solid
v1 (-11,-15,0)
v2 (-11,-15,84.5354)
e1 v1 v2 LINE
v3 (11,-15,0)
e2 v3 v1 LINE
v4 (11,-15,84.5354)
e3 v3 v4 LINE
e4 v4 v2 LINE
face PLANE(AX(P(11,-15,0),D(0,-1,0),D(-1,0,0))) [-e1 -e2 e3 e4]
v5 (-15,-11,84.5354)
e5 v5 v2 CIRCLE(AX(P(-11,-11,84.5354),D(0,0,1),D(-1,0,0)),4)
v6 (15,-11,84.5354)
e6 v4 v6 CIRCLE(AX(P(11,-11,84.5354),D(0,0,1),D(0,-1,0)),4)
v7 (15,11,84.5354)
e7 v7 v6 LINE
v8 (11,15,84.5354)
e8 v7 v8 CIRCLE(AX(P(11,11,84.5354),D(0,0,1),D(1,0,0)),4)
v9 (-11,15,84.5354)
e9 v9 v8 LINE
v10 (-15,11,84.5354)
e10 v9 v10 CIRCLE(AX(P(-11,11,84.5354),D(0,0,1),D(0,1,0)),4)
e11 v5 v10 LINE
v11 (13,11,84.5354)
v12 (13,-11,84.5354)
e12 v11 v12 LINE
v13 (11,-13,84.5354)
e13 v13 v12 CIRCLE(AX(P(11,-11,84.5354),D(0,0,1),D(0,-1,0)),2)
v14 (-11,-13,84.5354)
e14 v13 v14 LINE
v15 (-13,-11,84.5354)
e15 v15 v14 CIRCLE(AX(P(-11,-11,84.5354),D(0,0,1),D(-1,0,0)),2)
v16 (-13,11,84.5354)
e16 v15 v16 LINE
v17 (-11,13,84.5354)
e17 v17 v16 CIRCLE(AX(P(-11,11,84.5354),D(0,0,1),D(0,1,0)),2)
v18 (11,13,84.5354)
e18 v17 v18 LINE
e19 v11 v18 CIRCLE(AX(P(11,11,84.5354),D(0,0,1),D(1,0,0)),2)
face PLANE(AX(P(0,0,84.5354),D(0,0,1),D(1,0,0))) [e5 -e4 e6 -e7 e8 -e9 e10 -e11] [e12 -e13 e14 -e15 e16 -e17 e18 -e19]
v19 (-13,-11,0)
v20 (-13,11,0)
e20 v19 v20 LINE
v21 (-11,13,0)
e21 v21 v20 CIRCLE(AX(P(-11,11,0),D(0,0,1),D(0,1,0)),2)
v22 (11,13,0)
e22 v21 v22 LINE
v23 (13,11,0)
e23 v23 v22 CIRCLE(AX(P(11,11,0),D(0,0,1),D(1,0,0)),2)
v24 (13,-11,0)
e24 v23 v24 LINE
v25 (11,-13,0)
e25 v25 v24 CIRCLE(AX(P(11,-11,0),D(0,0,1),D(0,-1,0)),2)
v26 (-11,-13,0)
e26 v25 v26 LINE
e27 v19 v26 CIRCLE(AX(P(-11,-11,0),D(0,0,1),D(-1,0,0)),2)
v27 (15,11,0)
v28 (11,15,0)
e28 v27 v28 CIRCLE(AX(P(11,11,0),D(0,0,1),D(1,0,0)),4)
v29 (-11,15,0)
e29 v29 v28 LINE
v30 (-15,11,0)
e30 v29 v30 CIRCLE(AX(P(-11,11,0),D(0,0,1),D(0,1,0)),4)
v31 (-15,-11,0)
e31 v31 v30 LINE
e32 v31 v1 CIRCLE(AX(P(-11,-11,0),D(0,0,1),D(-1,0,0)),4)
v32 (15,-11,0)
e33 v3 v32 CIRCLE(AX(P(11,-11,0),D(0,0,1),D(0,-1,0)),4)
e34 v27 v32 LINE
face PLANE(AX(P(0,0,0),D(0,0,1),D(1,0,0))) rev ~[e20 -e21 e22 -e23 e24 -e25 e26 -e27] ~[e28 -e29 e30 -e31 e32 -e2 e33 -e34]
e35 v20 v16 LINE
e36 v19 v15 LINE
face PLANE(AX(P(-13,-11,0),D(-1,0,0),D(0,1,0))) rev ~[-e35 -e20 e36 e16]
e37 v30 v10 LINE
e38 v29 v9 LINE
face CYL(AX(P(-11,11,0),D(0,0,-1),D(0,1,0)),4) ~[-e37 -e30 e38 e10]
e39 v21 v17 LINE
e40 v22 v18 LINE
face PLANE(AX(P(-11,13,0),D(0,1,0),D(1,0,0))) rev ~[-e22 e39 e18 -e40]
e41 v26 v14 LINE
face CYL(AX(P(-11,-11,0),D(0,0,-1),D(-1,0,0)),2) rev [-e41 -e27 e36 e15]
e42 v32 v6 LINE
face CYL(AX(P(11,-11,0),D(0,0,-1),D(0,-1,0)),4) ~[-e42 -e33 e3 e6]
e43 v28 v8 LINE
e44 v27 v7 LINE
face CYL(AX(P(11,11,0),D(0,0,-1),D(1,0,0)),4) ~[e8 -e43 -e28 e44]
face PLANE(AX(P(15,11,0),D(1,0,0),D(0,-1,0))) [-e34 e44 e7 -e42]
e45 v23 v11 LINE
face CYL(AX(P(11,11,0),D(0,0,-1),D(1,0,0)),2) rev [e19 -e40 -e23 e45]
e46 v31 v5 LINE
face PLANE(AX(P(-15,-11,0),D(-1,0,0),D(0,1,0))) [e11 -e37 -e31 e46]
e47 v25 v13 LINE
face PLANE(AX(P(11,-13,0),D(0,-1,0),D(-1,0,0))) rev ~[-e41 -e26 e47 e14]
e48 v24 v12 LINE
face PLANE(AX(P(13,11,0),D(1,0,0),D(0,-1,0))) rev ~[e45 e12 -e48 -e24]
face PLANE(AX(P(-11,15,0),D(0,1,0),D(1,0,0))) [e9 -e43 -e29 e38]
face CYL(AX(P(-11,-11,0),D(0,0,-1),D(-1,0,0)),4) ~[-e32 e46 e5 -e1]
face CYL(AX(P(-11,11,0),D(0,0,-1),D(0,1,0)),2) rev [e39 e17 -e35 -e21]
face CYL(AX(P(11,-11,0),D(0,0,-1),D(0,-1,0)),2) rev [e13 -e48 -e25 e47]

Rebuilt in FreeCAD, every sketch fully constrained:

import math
import FreeCAD as App
import Part
import Sketcher

V = App.Vector

doc = App.newDocument("Part")
params = doc.addObject("Spreadsheet::Sheet", "Params")
for row, (alias, value) in enumerate([
    ("sketch1_radius", "4 mm"),
    ("sketch1_radius2", "2 mm"),
    ("pad1_length", "84.5354 mm"),
], start=1):
    params.set(f"A{row}", alias)
    params.set(f"B{row}", "=" + value)
    params.setAlias(f"B{row}", alias)

body = doc.addObject("PartDesign::Body", "Body")

# Sketch on XY plane
sketch1 = body.newObject("Sketcher::SketchObject", "Sketch")
sketch1.AttachmentSupport = (doc.getObject("XY_Plane"), [""])
sketch1.MapMode = "FlatFace"
sketch1.addGeometry([
    Part.LineSegment(V(-15, 11, 0), V(-15, -11, 0)),  # 0
    Part.ArcOfCircle(Part.Circle(V(-11, -11, 0), V(0, 0, 1), 4), math.radians(180), math.radians(270)),  # 1
    Part.LineSegment(V(-11, -15, 0), V(11, -15, 0)),  # 2
    Part.ArcOfCircle(Part.Circle(V(11, -11, 0), V(0, 0, 1), 4), math.radians(-90), math.radians(0)),  # 3
    Part.LineSegment(V(15, -11, 0), V(15, 11, 0)),  # 4
    Part.ArcOfCircle(Part.Circle(V(11, 11, 0), V(0, 0, 1), 4), math.radians(0), math.radians(90)),  # 5
    Part.LineSegment(V(11, 15, 0), V(-11, 15, 0)),  # 6
    Part.ArcOfCircle(Part.Circle(V(-11, 11, 0), V(0, 0, 1), 4), math.radians(90), math.radians(180)),  # 7
    Part.ArcOfCircle(Part.Circle(V(-11, 11, 0), V(0, 0, 1), 2), math.radians(90), math.radians(180)),  # 8
    Part.LineSegment(V(-11, 13, 0), V(11, 13, 0)),  # 9
    Part.ArcOfCircle(Part.Circle(V(11, 11, 0), V(0, 0, 1), 2), math.radians(0), math.radians(90)),  # 10
    Part.LineSegment(V(13, 11, 0), V(13, -11, 0)),  # 11
    Part.ArcOfCircle(Part.Circle(V(11, -11, 0), V(0, 0, 1), 2), math.radians(-90), math.radians(0)),  # 12
    Part.LineSegment(V(11, -13, 0), V(-11, -13, 0)),  # 13
    Part.ArcOfCircle(Part.Circle(V(-11, -11, 0), V(0, 0, 1), 2), math.radians(180), math.radians(270)),  # 14
    Part.LineSegment(V(-13, -11, 0), V(-13, 11, 0)),  # 15
], False)
sketch1.addConstraint([
    Sketcher.Constraint("Tangent", 0, 2, 1, 1),
    Sketcher.Constraint("Tangent", 1, 2, 2, 1),
    Sketcher.Constraint("Tangent", 2, 2, 3, 1),
    Sketcher.Constraint("Tangent", 3, 2, 4, 1),
    Sketcher.Constraint("Tangent", 4, 2, 5, 1),
    Sketcher.Constraint("Tangent", 5, 2, 6, 1),
    Sketcher.Constraint("Tangent", 6, 2, 7, 1),
    Sketcher.Constraint("Tangent", 7, 2, 0, 1),
    Sketcher.Constraint("Tangent", 8, 1, 9, 1),
    Sketcher.Constraint("Tangent", 9, 2, 10, 2),
    Sketcher.Constraint("Tangent", 10, 1, 11, 1),
    Sketcher.Constraint("Tangent", 11, 2, 12, 2),
    Sketcher.Constraint("Tangent", 12, 1, 13, 1),
    Sketcher.Constraint("Tangent", 13, 2, 14, 2),
    Sketcher.Constraint("Tangent", 14, 1, 15, 1),
    Sketcher.Constraint("Tangent", 15, 2, 8, 2),
    Sketcher.Constraint("Vertical", 0),
    Sketcher.Constraint("Horizontal", 2),
    Sketcher.Constraint("Vertical", 4),
    Sketcher.Constraint("Horizontal", 6),
    Sketcher.Constraint("Horizontal", 9),
    Sketcher.Constraint("Vertical", 11),
    Sketcher.Constraint("Horizontal", 13),
    Sketcher.Constraint("Vertical", 15),
    Sketcher.Constraint("Coincident", 8, 3, 7, 3),
    Sketcher.Constraint("Coincident", 10, 3, 5, 3),
    Sketcher.Constraint("Coincident", 12, 3, 3, 3),
    Sketcher.Constraint("Equal", 1, 3),
    Sketcher.Constraint("Equal", 3, 5),
    Sketcher.Constraint("Equal", 5, 7),
    Sketcher.Constraint("Equal", 12, 14),
    Sketcher.Constraint("Symmetric", 1, 3, 5, 3, -1, 1),
    Sketcher.Constraint("Equal", 13, 0),
    Sketcher.Constraint("Radius", 1, 4.0),
    Sketcher.Constraint("Radius", 8, 2.0),
    Sketcher.Constraint("DistanceX", 0, 2, -1, 1, 15.0),
])
sketch1.setExpression("Constraints[33]", "Params.sketch1_radius")
sketch1.setExpression("Constraints[34]", "Params.sketch1_radius2")
pad1 = body.newObject("PartDesign::Pad", "Pad")
pad1.Profile = sketch1
pad1.setExpression("Length", "Params.pad1_length")

doc.recompute()
